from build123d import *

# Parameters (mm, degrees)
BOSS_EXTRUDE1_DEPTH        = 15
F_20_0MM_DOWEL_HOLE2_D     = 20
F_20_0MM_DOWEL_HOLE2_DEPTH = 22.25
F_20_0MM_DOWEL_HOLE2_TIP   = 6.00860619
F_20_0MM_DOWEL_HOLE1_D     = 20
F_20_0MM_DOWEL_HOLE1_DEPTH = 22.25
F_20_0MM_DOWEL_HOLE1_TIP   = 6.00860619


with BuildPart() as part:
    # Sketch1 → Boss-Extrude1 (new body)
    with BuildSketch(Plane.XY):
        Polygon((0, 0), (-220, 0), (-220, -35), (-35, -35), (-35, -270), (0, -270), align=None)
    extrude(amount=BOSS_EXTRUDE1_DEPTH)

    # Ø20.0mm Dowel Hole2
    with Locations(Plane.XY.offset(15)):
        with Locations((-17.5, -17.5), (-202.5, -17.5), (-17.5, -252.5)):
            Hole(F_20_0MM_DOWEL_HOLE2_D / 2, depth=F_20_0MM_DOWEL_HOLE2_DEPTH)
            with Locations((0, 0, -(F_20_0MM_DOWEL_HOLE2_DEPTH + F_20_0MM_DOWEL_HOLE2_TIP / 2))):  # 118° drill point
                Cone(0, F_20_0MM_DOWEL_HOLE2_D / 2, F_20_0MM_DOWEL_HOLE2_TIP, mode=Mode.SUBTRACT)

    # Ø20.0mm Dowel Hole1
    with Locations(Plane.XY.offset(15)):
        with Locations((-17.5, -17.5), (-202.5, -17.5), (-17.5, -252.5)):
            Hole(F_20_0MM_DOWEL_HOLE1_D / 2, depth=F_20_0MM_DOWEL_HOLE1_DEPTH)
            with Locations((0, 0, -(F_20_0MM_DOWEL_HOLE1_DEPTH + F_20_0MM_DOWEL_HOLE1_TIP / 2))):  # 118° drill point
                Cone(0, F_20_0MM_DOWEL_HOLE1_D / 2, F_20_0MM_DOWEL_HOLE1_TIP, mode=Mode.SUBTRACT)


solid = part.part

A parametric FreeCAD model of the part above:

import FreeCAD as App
import Part
import Sketcher
Q = App.Units.Quantity


def add_polygon(sketch, points):
    """Adds a closed chain of lines whose ends are joined by coincident constraints."""
    first, n = sketch.GeometryCount, len(points)
    for a, b in zip(points, points[1:] + points[:1]):
        sketch.addGeometry(Part.LineSegment(App.Vector(*a, 0), App.Vector(*b, 0)), False)
    for i in range(n):
        sketch.addConstraint(Sketcher.Constraint("Coincident", first + i, 2, first + (i + 1) % n, 1))

doc = App.newDocument("Part")
body = doc.addObject("PartDesign::Body", "Body")

sketch1 = doc.addObject("Sketcher::SketchObject", "Sketch")
body.addObject(sketch1)
sketch1.AttachmentSupport = (doc.XY_Plane, [""])
sketch1.MapMode = "FlatFace"
add_polygon(sketch1, [(0, 0), (-220, 0), (-220, -35), (-35, -35), (-35, -270), (0, -270)])
sketch1.addConstraint(Sketcher.Constraint("Horizontal", 0))
sketch1.addConstraint(Sketcher.Constraint("Vertical", 1))
sketch1.addConstraint(Sketcher.Constraint("Horizontal", 2))
sketch1.addConstraint(Sketcher.Constraint("Vertical", 3))
sketch1.addConstraint(Sketcher.Constraint("Horizontal", 4))
sketch1.addConstraint(Sketcher.Constraint("Vertical", 5))
sketch1.addConstraint(Sketcher.Constraint("Coincident", 5, 2, -1, 1))
sketch1.addConstraint(Sketcher.Constraint("Equal", 4, 1))
sketch1.addConstraint(Sketcher.Constraint("DistanceX", 0, 2, 0, 1, Q("220 mm")))
sketch1.addConstraint(Sketcher.Constraint("DistanceX", 2, 1, 2, 2, Q("185 mm")))
sketch1.addConstraint(Sketcher.Constraint("DistanceY", 3, 2, 3, 1, Q("235 mm")))
pad1 = doc.addObject("PartDesign::Pad", "Pad")
body.addObject(pad1)
pad1.Profile = sketch1
pad1.Length = 15

sketch2 = doc.addObject("Sketcher::SketchObject", "Sketch001")
body.addObject(sketch2)
sketch2.AttachmentSupport = (doc.XY_Plane, [""])
sketch2.MapMode = "FlatFace"
sketch2.AttachmentOffset = App.Placement(App.Vector(0, 0, 15), App.Rotation())
sketch2.addGeometry(Part.Circle(App.Vector(-17.5, -17.5, 0), App.Vector(0, 0, 1), 10), False)
sketch2.addGeometry(Part.Circle(App.Vector(-202.5, -17.5, 0), App.Vector(0, 0, 1), 10), False)
sketch2.addGeometry(Part.Circle(App.Vector(-17.5, -252.5, 0), App.Vector(0, 0, 1), 10), False)
sketch2.addConstraint(Sketcher.Constraint("Equal", 0, 1))
sketch2.addConstraint(Sketcher.Constraint("Equal", 1, 2))
sketch2.addConstraint(Sketcher.Constraint("Horizontal", 0, 3, 1, 3))
sketch2.addConstraint(Sketcher.Constraint("Vertical", 0, 3, 2, 3))
sketch2.addConstraint(Sketcher.Constraint("Diameter", 0, Q("20 mm")))
sketch2.addConstraint(Sketcher.Constraint("DistanceX", 1, 3, 0, 3, Q("185 mm")))
sketch2.addConstraint(Sketcher.Constraint("DistanceY", 2, 3, 0, 3, Q("235 mm")))
sketch2.addConstraint(Sketcher.Constraint("DistanceX", 0, 3, -1, 1, Q("17.5 mm")))
sketch2.addConstraint(Sketcher.Constraint("DistanceY", 0, 3, -1, 1, Q("17.5 mm")))
doc.recompute()
hole = doc.addObject("PartDesign::Hole", "Hole")
body.addObject(hole)
hole.Profile = sketch2
hole.ThreadType = "None"
hole.Diameter = 20
hole.DepthType = "Dimension"
hole.Depth = 22.25
hole.DrillPoint = "Angled"
hole.DrillPointAngle = 118

sketch3 = doc.addObject("Sketcher::SketchObject", "Sketch002")
body.addObject(sketch3)
sketch3.AttachmentSupport = (doc.XY_Plane, [""])
sketch3.MapMode = "FlatFace"
sketch3.AttachmentOffset = App.Placement(App.Vector(0, 0, 15), App.Rotation())
sketch3.addGeometry(Part.Circle(App.Vector(-17.5, -17.5, 0), App.Vector(0, 0, 1), 10), False)
sketch3.addGeometry(Part.Circle(App.Vector(-202.5, -17.5, 0), App.Vector(0, 0, 1), 10), False)
sketch3.addGeometry(Part.Circle(App.Vector(-17.5, -252.5, 0), App.Vector(0, 0, 1), 10), False)
sketch3.addConstraint(Sketcher.Constraint("Equal", 0, 1))
sketch3.addConstraint(Sketcher.Constraint("Equal", 1, 2))
sketch3.addConstraint(Sketcher.Constraint("Horizontal", 0, 3, 1, 3))
sketch3.addConstraint(Sketcher.Constraint("Vertical", 0, 3, 2, 3))
sketch3.addConstraint(Sketcher.Constraint("Diameter", 0, Q("20 mm")))
sketch3.addConstraint(Sketcher.Constraint("DistanceX", 1, 3, 0, 3, Q("185 mm")))
sketch3.addConstraint(Sketcher.Constraint("DistanceY", 2, 3, 0, 3, Q("235 mm")))
sketch3.addConstraint(Sketcher.Constraint("DistanceX", 0, 3, -1, 1, Q("17.5 mm")))
sketch3.addConstraint(Sketcher.Constraint("DistanceY", 0, 3, -1, 1, Q("17.5 mm")))
doc.recompute()
hole2 = doc.addObject("PartDesign::Hole", "Hole001")
body.addObject(hole2)
hole2.Profile = sketch3
hole2.ThreadType = "None"
hole2.Diameter = 20
hole2.DepthType = "Dimension"
hole2.Depth = 22.25
hole2.DrillPoint = "Angled"
hole2.DrillPointAngle = 118

doc.recompute()
